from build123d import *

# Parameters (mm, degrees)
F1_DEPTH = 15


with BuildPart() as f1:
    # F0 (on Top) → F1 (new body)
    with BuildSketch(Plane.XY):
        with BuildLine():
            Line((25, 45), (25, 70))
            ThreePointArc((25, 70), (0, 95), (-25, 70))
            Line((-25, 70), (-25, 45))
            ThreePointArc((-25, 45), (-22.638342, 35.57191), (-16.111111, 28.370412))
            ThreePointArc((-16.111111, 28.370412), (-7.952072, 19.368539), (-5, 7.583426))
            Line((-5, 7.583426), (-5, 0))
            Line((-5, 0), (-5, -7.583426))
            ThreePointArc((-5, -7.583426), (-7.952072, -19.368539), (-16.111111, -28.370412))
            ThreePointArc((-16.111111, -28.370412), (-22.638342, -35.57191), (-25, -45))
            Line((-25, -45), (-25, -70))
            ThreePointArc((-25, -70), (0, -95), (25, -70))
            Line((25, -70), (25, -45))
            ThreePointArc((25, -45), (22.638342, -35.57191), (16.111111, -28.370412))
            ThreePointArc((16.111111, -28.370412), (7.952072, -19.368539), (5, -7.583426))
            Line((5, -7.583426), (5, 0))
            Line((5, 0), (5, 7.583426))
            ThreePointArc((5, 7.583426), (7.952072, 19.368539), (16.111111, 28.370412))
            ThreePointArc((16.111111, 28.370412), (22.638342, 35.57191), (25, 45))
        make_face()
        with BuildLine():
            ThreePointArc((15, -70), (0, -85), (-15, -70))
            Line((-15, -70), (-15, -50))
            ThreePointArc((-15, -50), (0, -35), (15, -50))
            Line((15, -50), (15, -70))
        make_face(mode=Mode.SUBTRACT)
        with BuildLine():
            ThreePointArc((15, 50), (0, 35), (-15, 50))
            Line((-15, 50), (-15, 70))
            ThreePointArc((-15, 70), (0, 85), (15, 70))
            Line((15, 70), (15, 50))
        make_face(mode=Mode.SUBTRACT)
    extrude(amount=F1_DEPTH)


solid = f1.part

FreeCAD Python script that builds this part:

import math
import FreeCAD as App
import Part
import Sketcher

V = App.Vector

doc = App.newDocument("Part")
body = doc.addObject("PartDesign::Body", "Body")

# Sketch on XY plane
sketch1 = body.newObject("Sketcher::SketchObject", "Sketch")
sketch1.AttachmentSupport = (doc.getObject("XY_Plane"), [""])
sketch1.MapMode = "FlatFace"
sketch1.addGeometry(Part.LineSegment(V(25, 45, 0), V(25, 70, 0)), False)
sketch1.addGeometry(Part.ArcOfCircle(Part.Circle(V(0, 70, 0), V(0, 0, 1), 25), math.radians(0), math.radians(180)), False)
sketch1.addGeometry(Part.LineSegment(V(-25, 70, 0), V(-25, 45, 0)), False)
sketch1.addGeometry(Part.ArcOfCircle(Part.Circle(V(-5, 45, 0), V(0, 0, 1), 20), math.radians(-180), math.radians(-124)), False)
sketch1.addGeometry(Part.ArcOfCircle(Part.Circle(V(-30, 8, 0), V(0, 0, 1), 25), math.radians(0), math.radians(56)), False)
sketch1.addGeometry(Part.LineSegment(V(-5, 8, 0), V(-5, -8, 0)), False)
sketch1.addGeometry(Part.ArcOfCircle(Part.Circle(V(-30, -8, 0), V(0, 0, 1), 25), math.radians(-56), math.radians(0)), False)
sketch1.addGeometry(Part.ArcOfCircle(Part.Circle(V(-5, -45, 0), V(0, 0, 1), 20), math.radians(124), math.radians(180)), False)
sketch1.addGeometry(Part.LineSegment(V(-25, -45, 0), V(-25, -70, 0)), False)
sketch1.addGeometry(Part.ArcOfCircle(Part.Circle(V(0, -70, 0), V(0, 0, 1), 25), math.radians(180), math.radians(360)), False)
sketch1.addGeometry(Part.LineSegment(V(25, -70, 0), V(25, -45, 0)), False)
sketch1.addGeometry(Part.ArcOfCircle(Part.Circle(V(5, -45, 0), V(0, 0, 1), 20), math.radians(0), math.radians(56)), False)
sketch1.addGeometry(Part.ArcOfCircle(Part.Circle(V(30, -8, 0), V(0, 0, 1), 25), math.radians(180), math.radians(236)), False)
sketch1.addGeometry(Part.LineSegment(V(5, -8, 0), V(5, 8, 0)), False)
sketch1.addGeometry(Part.ArcOfCircle(Part.Circle(V(30, 8, 0), V(0, 0, 1), 25), math.radians(124), math.radians(180)), False)
sketch1.addGeometry(Part.ArcOfCircle(Part.Circle(V(5, 45, 0), V(0, 0, 1), 20), math.radians(-56), math.radians(0)), False)
sketch1.addGeometry(Part.LineSegment(V(15, -50, 0), V(15, -70, 0)), False)
sketch1.addGeometry(Part.ArcOfCircle(Part.Circle(V(0, -70, 0), V(0, 0, 1), 15), math.radians(180), math.radians(360)), False)
sketch1.addGeometry(Part.LineSegment(V(-15, -70, 0), V(-15, -50, 0)), False)
sketch1.addGeometry(Part.ArcOfCircle(Part.Circle(V(0, -50, 0), V(0, 0, 1), 15), math.radians(0), math.radians(180)), False)
sketch1.addGeometry(Part.LineSegment(V(15, 70, 0), V(15, 50, 0)), False)
sketch1.addGeometry(Part.ArcOfCircle(Part.Circle(V(0, 50, 0), V(0, 0, 1), 15), math.radians(180), math.radians(360)), False)
sketch1.addGeometry(Part.LineSegment(V(-15, 50, 0), V(-15, 70, 0)), False)
sketch1.addGeometry(Part.ArcOfCircle(Part.Circle(V(0, 70, 0), V(0, 0, 1), 15), math.radians(0), math.radians(180)), False)
sketch1.addConstraint(Sketcher.Constraint("Tangent", 0, 2, 1, 1))
sketch1.addConstraint(Sketcher.Constraint("Tangent", 1, 2, 2, 1))
sketch1.addConstraint(Sketcher.Constraint("Tangent", 2, 2, 3, 1))
sketch1.addConstraint(Sketcher.Constraint("Tangent", 3, 2, 4, 2))
sketch1.addConstraint(Sketcher.Constraint("Tangent", 4, 1, 5, 1))
sketch1.addConstraint(Sketcher.Constraint("Tangent", 5, 2, 6, 2))
sketch1.addConstraint(Sketcher.Constraint("Tangent", 6, 1, 7, 1))
sketch1.addConstraint(Sketcher.Constraint("Tangent", 7, 2, 8, 1))
sketch1.addConstraint(Sketcher.Constraint("Tangent", 8, 2, 9, 1))
sketch1.addConstraint(Sketcher.Constraint("Tangent", 9, 2, 10, 1))
sketch1.addConstraint(Sketcher.Constraint("Tangent", 10, 2, 11, 1))
sketch1.addConstraint(Sketcher.Constraint("Tangent", 11, 2, 12, 2))
sketch1.addConstraint(Sketcher.Constraint("Tangent", 12, 1, 13, 1))
sketch1.addConstraint(Sketcher.Constraint("Tangent", 13, 2, 14, 2))
sketch1.addConstraint(Sketcher.Constraint("Tangent", 14, 1, 15, 1))
sketch1.addConstraint(Sketcher.Constraint("Tangent", 15, 2, 0, 1))
sketch1.addConstraint(Sketcher.Constraint("Tangent", 16, 2, 17, 2))
sketch1.addConstraint(Sketcher.Constraint("Tangent", 17, 1, 18, 1))
sketch1.addConstraint(Sketcher.Constraint("Tangent", 18, 2, 19, 2))
sketch1.addConstraint(Sketcher.Constraint("Tangent", 19, 1, 16, 1))
sketch1.addConstraint(Sketcher.Constraint("Tangent", 20, 2, 21, 2))
sketch1.addConstraint(Sketcher.Constraint("Tangent", 21, 1, 22, 1))
sketch1.addConstraint(Sketcher.Constraint("Tangent", 22, 2, 23, 2))
sketch1.addConstraint(Sketcher.Constraint("Tangent", 23, 1, 20, 1))
sketch1.addConstraint(Sketcher.Constraint("Vertical", 0))
sketch1.addConstraint(Sketcher.Constraint("Vertical", 2))
sketch1.addConstraint(Sketcher.Constraint("Vertical", 5))
sketch1.addConstraint(Sketcher.Constraint("Vertical", 8))
sketch1.addConstraint(Sketcher.Constraint("Vertical", 10))
sketch1.addConstraint(Sketcher.Constraint("Vertical", 13))
sketch1.addConstraint(Sketcher.Constraint("Vertical", 16))
sketch1.addConstraint(Sketcher.Constraint("Vertical", 18))
sketch1.addConstraint(Sketcher.Constraint("Vertical", 20))
sketch1.addConstraint(Sketcher.Constraint("Vertical", 22))
sketch1.addConstraint(Sketcher.Constraint("Coincident", 17, 3, 9, 3))
sketch1.addConstraint(Sketcher.Constraint("Coincident", 23, 3, 1, 3))
sketch1.addConstraint(Sketcher.Constraint("Equal", 1, 4))
sketch1.addConstraint(Sketcher.Constraint("Equal", 4, 6))
sketch1.addConstraint(Sketcher.Constraint("Equal", 3, 7))
sketch1.addConstraint(Sketcher.Constraint("Equal", 6, 9))
sketch1.addConstraint(Sketcher.Constraint("Equal", 7, 11))
sketch1.addConstraint(Sketcher.Constraint("Equal", 9, 12))
sketch1.addConstraint(Sketcher.Constraint("Equal", 12, 14))
sketch1.addConstraint(Sketcher.Constraint("Equal", 11, 15))
sketch1.addConstraint(Sketcher.Constraint("Equal", 19, 21))
sketch1.addConstraint(Sketcher.Constraint("Symmetric", 1, 3, 9, 3, -1, 1))
sketch1.addConstraint(Sketcher.Constraint("Symmetric", 4, 3, 12, 3, -1, 1))
sketch1.addConstraint(Sketcher.Constraint("Symmetric", 7, 3, 11, 3, -2))
sketch1.addConstraint(Sketcher.Constraint("Horizontal", 4, 3, 14, 3))
sketch1.addConstraint(Sketcher.Constraint("Vertical", 7, 3, 4, 1))
sketch1.addConstraint(Sketcher.Constraint("Equal", 18, 20))
sketch1.addConstraint(Sketcher.Constraint("Radius", 1, 25.0))
sketch1.addConstraint(Sketcher.Constraint("Radius", 3, 20.0))
sketch1.addConstraint(Sketcher.Constraint("Radius", 17, 15.0))
sketch1.addConstraint(Sketcher.Constraint("DistanceY", 0, 1, 0, 2, 25.0))
sketch1.addConstraint(Sketcher.Constraint("DistanceY", 16, 2, 16, 1, 20.0))
sketch1.addConstraint(Sketcher.Constraint("DistanceY", -1, 1, 1, 3, 70.0))
pad1 = body.newObject("PartDesign::Pad", "Pad")
pad1.Profile = sketch1
pad1.Length = 15

doc.recompute()
